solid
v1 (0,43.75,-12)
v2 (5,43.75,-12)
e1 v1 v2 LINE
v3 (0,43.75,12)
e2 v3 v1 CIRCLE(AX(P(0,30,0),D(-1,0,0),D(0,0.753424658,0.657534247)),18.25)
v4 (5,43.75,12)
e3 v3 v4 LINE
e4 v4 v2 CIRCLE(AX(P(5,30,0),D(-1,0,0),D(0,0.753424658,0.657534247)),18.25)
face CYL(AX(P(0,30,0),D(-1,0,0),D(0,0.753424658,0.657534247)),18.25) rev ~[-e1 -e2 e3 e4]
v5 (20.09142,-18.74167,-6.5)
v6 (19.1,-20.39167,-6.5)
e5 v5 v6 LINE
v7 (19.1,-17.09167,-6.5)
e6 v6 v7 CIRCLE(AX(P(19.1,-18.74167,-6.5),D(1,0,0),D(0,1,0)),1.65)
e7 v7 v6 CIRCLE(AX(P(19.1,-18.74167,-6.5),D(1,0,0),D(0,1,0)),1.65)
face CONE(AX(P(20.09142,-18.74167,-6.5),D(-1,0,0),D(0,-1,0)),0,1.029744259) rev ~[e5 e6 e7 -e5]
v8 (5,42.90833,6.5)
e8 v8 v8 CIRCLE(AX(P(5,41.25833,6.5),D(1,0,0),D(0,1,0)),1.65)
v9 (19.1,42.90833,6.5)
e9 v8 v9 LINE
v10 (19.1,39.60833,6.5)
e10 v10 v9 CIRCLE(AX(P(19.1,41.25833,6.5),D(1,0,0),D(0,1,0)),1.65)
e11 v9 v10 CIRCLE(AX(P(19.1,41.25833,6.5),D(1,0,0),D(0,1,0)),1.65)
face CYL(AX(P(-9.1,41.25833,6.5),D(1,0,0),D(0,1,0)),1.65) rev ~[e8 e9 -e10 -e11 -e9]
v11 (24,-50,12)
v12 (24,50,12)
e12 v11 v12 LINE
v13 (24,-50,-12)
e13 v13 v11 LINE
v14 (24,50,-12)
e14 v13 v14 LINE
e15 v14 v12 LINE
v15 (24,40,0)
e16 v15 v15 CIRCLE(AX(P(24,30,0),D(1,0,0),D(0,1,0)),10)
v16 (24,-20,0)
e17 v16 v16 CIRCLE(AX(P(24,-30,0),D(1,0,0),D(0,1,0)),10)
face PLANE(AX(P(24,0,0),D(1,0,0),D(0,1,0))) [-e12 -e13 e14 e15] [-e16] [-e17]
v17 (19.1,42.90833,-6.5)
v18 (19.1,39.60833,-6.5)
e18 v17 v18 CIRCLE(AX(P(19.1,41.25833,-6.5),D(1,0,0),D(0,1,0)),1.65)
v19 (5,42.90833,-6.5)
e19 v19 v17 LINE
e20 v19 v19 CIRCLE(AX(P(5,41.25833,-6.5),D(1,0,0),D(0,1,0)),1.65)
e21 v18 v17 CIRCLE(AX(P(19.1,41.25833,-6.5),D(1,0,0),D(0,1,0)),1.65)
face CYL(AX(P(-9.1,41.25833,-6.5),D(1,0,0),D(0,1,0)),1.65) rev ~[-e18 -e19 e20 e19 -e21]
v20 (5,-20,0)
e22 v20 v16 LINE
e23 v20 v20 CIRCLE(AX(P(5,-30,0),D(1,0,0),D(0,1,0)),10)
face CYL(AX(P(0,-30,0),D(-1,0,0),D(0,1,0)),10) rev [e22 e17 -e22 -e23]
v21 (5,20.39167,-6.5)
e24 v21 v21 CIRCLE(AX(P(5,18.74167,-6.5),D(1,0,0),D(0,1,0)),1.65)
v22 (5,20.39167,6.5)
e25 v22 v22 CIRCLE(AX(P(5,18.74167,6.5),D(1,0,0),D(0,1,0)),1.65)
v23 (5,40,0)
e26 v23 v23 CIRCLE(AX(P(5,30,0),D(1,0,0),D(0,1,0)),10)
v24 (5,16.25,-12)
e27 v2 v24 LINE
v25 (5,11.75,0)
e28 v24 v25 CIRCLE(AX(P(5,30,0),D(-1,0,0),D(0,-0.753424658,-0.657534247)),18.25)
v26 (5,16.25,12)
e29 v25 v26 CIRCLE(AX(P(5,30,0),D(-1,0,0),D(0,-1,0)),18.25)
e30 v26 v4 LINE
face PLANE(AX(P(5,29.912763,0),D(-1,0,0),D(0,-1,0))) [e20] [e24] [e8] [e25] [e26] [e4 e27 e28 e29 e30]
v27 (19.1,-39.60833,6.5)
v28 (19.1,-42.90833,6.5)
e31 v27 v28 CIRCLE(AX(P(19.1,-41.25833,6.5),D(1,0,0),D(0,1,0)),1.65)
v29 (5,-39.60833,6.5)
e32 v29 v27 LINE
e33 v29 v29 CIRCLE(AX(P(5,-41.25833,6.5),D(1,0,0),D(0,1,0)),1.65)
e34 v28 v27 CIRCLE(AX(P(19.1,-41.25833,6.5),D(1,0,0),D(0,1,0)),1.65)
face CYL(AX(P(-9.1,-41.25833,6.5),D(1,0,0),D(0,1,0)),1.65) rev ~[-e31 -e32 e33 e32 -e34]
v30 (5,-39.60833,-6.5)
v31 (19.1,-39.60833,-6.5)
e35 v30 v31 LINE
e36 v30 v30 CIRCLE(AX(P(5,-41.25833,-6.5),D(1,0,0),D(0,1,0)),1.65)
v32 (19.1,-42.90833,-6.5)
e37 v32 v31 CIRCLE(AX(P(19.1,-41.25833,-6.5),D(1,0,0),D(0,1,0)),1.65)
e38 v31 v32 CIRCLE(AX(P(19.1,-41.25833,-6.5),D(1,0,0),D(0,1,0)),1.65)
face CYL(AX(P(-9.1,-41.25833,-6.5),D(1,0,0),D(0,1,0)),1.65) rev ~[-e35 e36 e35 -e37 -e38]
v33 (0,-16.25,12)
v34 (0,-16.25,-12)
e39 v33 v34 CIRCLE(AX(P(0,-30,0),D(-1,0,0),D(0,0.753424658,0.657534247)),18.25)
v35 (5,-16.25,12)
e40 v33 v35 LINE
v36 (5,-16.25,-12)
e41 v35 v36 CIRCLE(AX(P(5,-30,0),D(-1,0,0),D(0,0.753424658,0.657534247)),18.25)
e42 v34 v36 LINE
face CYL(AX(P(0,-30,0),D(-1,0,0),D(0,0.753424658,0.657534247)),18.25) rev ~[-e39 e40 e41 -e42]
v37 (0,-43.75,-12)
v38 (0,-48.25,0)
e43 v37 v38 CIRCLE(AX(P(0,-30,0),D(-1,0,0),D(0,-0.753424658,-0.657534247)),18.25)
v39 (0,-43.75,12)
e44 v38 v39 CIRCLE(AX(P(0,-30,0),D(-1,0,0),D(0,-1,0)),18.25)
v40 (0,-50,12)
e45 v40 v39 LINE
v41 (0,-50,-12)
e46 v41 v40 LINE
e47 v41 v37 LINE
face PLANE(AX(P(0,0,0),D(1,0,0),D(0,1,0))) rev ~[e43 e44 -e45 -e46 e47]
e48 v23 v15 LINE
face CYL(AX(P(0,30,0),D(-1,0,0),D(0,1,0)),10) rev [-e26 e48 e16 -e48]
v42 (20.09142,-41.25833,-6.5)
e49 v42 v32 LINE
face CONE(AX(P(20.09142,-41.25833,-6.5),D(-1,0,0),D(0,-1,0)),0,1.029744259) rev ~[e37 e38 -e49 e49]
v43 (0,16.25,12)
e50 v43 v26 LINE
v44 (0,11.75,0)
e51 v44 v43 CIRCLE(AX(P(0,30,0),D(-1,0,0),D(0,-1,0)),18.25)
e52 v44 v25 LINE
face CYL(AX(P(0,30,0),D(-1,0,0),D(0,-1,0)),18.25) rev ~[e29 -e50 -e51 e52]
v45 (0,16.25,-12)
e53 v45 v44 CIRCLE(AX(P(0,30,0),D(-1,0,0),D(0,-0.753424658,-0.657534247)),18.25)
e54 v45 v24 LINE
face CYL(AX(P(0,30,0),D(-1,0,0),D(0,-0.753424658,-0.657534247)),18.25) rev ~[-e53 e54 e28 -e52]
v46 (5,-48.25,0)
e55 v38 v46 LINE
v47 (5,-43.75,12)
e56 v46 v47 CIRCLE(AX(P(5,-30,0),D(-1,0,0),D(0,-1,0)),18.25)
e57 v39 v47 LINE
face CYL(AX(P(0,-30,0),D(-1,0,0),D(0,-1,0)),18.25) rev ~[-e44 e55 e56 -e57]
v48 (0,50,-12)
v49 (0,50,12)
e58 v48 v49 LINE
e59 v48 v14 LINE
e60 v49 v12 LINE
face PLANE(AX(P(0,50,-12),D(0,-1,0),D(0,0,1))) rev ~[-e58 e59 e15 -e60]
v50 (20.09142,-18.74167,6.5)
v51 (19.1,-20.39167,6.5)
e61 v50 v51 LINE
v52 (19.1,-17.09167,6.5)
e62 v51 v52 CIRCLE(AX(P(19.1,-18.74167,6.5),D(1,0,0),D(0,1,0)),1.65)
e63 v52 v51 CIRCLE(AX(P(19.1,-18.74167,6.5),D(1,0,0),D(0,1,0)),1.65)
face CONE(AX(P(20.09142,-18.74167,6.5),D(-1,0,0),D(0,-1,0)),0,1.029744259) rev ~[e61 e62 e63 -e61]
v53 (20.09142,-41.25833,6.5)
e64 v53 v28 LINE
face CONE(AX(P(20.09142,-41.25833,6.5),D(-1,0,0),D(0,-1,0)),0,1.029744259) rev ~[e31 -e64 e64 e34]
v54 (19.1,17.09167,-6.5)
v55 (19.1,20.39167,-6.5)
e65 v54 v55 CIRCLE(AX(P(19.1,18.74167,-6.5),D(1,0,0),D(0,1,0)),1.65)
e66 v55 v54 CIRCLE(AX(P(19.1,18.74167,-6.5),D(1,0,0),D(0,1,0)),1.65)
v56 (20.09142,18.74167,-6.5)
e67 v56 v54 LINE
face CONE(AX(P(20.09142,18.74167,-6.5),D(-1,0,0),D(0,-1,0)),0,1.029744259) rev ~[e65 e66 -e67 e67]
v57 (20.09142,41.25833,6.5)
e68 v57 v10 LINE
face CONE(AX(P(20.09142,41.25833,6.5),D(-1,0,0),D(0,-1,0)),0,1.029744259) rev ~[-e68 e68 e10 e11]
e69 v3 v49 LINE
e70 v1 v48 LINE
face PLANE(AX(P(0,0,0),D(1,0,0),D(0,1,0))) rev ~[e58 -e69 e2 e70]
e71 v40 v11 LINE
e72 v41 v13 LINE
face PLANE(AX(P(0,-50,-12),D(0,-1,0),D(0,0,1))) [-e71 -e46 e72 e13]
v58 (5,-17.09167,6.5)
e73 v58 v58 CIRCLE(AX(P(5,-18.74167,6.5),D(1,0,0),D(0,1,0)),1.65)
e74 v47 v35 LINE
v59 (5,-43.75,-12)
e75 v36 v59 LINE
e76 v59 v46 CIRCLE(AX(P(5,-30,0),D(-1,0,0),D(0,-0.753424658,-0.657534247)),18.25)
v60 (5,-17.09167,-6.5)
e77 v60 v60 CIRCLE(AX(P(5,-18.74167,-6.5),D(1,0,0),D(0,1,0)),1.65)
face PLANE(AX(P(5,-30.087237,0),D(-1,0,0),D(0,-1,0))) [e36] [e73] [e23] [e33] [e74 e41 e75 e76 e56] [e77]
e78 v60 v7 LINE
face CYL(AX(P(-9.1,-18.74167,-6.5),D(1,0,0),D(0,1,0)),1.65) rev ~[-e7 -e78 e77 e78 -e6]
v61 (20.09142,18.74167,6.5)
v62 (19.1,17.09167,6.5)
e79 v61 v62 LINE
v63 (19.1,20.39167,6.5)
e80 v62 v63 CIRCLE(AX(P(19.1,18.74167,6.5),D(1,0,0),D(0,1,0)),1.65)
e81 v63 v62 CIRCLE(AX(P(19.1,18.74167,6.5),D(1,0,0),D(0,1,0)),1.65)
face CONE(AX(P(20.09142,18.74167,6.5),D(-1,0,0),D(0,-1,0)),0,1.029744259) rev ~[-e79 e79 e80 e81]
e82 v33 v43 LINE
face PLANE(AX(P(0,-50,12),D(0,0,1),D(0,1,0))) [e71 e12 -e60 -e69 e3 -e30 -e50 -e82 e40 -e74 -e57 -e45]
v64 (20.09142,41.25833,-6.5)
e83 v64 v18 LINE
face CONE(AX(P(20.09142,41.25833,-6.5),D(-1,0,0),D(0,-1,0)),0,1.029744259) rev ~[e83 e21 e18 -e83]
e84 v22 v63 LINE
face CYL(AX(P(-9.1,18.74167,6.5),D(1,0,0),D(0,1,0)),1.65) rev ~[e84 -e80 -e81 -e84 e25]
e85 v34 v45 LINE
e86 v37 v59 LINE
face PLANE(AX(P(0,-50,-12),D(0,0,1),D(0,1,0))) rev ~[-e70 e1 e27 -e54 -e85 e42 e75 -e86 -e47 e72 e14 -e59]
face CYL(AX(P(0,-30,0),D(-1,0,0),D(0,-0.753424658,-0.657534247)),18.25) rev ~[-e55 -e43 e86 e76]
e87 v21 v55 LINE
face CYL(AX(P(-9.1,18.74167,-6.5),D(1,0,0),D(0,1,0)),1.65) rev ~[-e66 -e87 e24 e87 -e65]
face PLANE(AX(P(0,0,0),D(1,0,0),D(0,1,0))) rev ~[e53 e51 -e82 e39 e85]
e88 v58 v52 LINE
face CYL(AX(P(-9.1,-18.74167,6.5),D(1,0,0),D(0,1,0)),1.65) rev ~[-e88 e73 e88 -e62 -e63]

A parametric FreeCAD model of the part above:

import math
import FreeCAD as App
import Part
import Sketcher
from FreeCAD import Vector


def add_polygon(sketch, points):
    """Adds a closed chain of lines whose ends are joined by coincident constraints."""
    first, n = sketch.GeometryCount, len(points)
    for a, b in zip(points, points[1:] + points[:1]):
        sketch.addGeometry(Part.LineSegment(App.Vector(*a, 0), App.Vector(*b, 0)), False)
    for i in range(n):
        sketch.addConstraint(Sketcher.Constraint("Coincident", first + i, 2, first + (i + 1) % n, 1))

doc = App.newDocument("Part")
params = doc.addObject("Spreadsheet::Sheet", "Params")
for row, (alias, value) in enumerate([
    ("sketch1_diameter", "20 mm"),
    ("sketch1_width", "100 mm"),
    ("sketch1_height", "24 mm"),
    ("pad1_length", "24 mm"),
    ("sketch2_diameter", "20 mm"),
    ("sketch2_radius", "18.25 mm"),
    ("sketch2_width", "27.5 mm"),
    ("pocket1_length", "5 mm"),
    ("sketch3_diameter", "3.3 mm"),
    ("hole_diameter", "3.3 mm"),
    ("hole_depth", "14.1 mm"),
], start=1):
    params.set(f"A{row}", alias)
    params.set(f"B{row}", "=" + value)
    params.setAlias(f"B{row}", alias)

body = doc.addObject("PartDesign::Body", "Body")

sketch1 = body.newObject("Sketcher::SketchObject", "Sketch")
sketch1.AttachmentSupport = (doc.getObject("YZ_Plane"), [""])
sketch1.MapMode = "FlatFace"
add_polygon(sketch1, [(-50, 12), (-50, -12), (50, -12), (50, 12)])
sketch1.addGeometry(Part.Circle(Vector(-30, 0, 0), Vector(0, 0, 1), 10), False)
sketch1.addGeometry(Part.Circle(Vector(30, 0, 0), Vector(0, 0, 1), 10), False)
sketch1.addConstraint(Sketcher.Constraint("Vertical", 0))
sketch1.addConstraint(Sketcher.Constraint("Horizontal", 1))
sketch1.addConstraint(Sketcher.Constraint("Vertical", 2))
sketch1.addConstraint(Sketcher.Constraint("Horizontal", 3))
sketch1.addConstraint(Sketcher.Constraint("Equal", 4, 5))
sketch1.addConstraint(Sketcher.Constraint("Symmetric", 4, 3, 5, 3, -1, 1))
sketch1.addConstraint(Sketcher.Constraint("Symmetric", 0, 2, 2, 2, -1, 1))
sketch1.addConstraint(Sketcher.Constraint("PointOnObject", 4, 3, -1))
sketch1.addConstraint(Sketcher.Constraint("Diameter", 4, 20.0))
sketch1.addConstraint(Sketcher.Constraint("DistanceX", 1, 1, 1, 2, 100.0))
sketch1.addConstraint(Sketcher.Constraint("DistanceY", 0, 2, 0, 1, 24.0))
sketch1.addConstraint(Sketcher.Constraint("DistanceX", 4, 3, -1, 1, 30.0))
sketch1.setExpression("Constraints[12]", "Params.sketch1_diameter")
sketch1.setExpression("Constraints[13]", "Params.sketch1_width")
sketch1.setExpression("Constraints[14]", "Params.sketch1_height")
pad1 = body.newObject("PartDesign::Pad", "Pad")
pad1.Profile = sketch1
pad1.setExpression("Length", "Params.pad1_length")

sketch2 = body.newObject("Sketcher::SketchObject", "Sketch001")
sketch2.AttachmentSupport = (doc.getObject("YZ_Plane"), [""])
sketch2.MapMode = "FlatFace"
sketch2.addGeometry(Part.ArcOfCircle(Part.Circle(Vector(30, 0, 0), Vector(0, 0, 1), 18.25), math.radians(180), math.radians(221.11209)), False)
sketch2.addGeometry(Part.ArcOfCircle(Part.Circle(Vector(30, 0, 0), Vector(0, 0, 1), 18.25), math.radians(138.88791), math.radians(180)), False)
sketch2.addGeometry(Part.LineSegment(Vector(16.25, 12, 0), Vector(43.75, 12, 0)), False)
sketch2.addGeometry(Part.ArcOfCircle(Part.Circle(Vector(30, 0, 0), Vector(0, 0, 1), 18.25), math.radians(-41.11209), math.radians(41.11209)), False)
sketch2.addGeometry(Part.LineSegment(Vector(43.75, -12, 0), Vector(16.25, -12, 0)), False)
sketch2.addGeometry(Part.Circle(Vector(30, 0, 0), Vector(0, 0, 1), 10), False)
sketch2.addGeometry(Part.LineSegment(Vector(-43.75, 12, 0), Vector(-16.25, 12, 0)), False)
sketch2.addGeometry(Part.ArcOfCircle(Part.Circle(Vector(-30, 0, 0), Vector(0, 0, 1), 18.25), math.radians(-41.11209), math.radians(41.11209)), False)
sketch2.addGeometry(Part.LineSegment(Vector(-16.25, -12, 0), Vector(-43.75, -12, 0)), False)
sketch2.addGeometry(Part.ArcOfCircle(Part.Circle(Vector(-30, 0, 0), Vector(0, 0, 1), 18.25), math.radians(180), math.radians(221.11209)), False)
sketch2.addGeometry(Part.ArcOfCircle(Part.Circle(Vector(-30, 0, 0), Vector(0, 0, 1), 18.25), math.radians(138.88791), math.radians(180)), False)
sketch2.addGeometry(Part.Circle(Vector(-30, 0, 0), Vector(0, 0, 1), 10), False)
sketch2.addConstraint(Sketcher.Constraint("Tangent", 0, 1, 1, 2))
sketch2.addConstraint(Sketcher.Constraint("Coincident", 1, 1, 2, 1))
sketch2.addConstraint(Sketcher.Constraint("Coincident", 2, 2, 3, 2))
sketch2.addConstraint(Sketcher.Constraint("Coincident", 3, 1, 4, 1))
sketch2.addConstraint(Sketcher.Constraint("Coincident", 4, 2, 0, 2))
sketch2.addConstraint(Sketcher.Constraint("Coincident", 6, 2, 7, 2))
sketch2.addConstraint(Sketcher.Constraint("Coincident", 7, 1, 8, 1))
sketch2.addConstraint(Sketcher.Constraint("Coincident", 8, 2, 9, 2))
sketch2.addConstraint(Sketcher.Constraint("Tangent", 9, 1, 10, 2))
sketch2.addConstraint(Sketcher.Constraint("Coincident", 10, 1, 6, 1))
sketch2.addConstraint(Sketcher.Constraint("Horizontal", 2))
sketch2.addConstraint(Sketcher.Constraint("Horizontal", 4))
sketch2.addConstraint(Sketcher.Constraint("Horizontal", 6))
sketch2.addConstraint(Sketcher.Constraint("Horizontal", 8))
sketch2.addConstraint(Sketcher.Constraint("Coincident", 3, 3, 0, 3))
sketch2.addConstraint(Sketcher.Constraint("Coincident", 5, 3, 0, 3))
sketch2.addConstraint(Sketcher.Constraint("Coincident", 9, 3, 7, 3))
sketch2.addConstraint(Sketcher.Constraint("Coincident", 11, 3, 7, 3))
sketch2.addConstraint(Sketcher.Constraint("Equal", 0, 1))
sketch2.addConstraint(Sketcher.Constraint("Equal", 1, 3))
sketch2.addConstraint(Sketcher.Constraint("Equal", 3, 7))
sketch2.addConstraint(Sketcher.Constraint("Equal", 7, 9))
sketch2.addConstraint(Sketcher.Constraint("Equal", 9, 10))
sketch2.addConstraint(Sketcher.Constraint("Equal", 5, 11))
sketch2.addConstraint(Sketcher.Constraint("Symmetric", 0, 3, 7, 3, -1, 1))
sketch2.addConstraint(Sketcher.Constraint("Symmetric", 1, 1, 6, 2, -2))
sketch2.addConstraint(Sketcher.Constraint("PointOnObject", 0, 1, -1))
sketch2.addConstraint(Sketcher.Constraint("PointOnObject", 9, 1, -1))
sketch2.addConstraint(Sketcher.Constraint("Horizontal", 4, 2, 7, 1))
sketch2.addConstraint(Sketcher.Constraint("Vertical", 2, 2, 3, 1))
sketch2.addConstraint(Sketcher.Constraint("Diameter", 5, 20.0))
sketch2.addConstraint(Sketcher.Constraint("Radius", 0, 18.25))
sketch2.addConstraint(Sketcher.Constraint("DistanceX", 2, 1, 2, 2, 27.5))
sketch2.addConstraint(Sketcher.Constraint("DistanceX", -1, 1, 0, 3, 30.0))
sketch2.setExpression("Constraints[30]", "Params.sketch2_diameter")
sketch2.setExpression("Constraints[31]", "Params.sketch2_radius")
sketch2.setExpression("Constraints[32]", "Params.sketch2_width")
pocket1 = body.newObject("PartDesign::Pocket", "Pocket")
pocket1.Profile = sketch2
pocket1.setExpression("Length", "Params.pocket1_length")
pocket1.Reversed = True

sketch3 = body.newObject("Sketcher::SketchObject", "Sketch002")
sketch3.AttachmentSupport = (doc.getObject("YZ_Plane"), [""])
sketch3.MapMode = "FlatFace"
sketch3.AttachmentOffset = App.Placement(Vector(0, 0, 5), App.Rotation())
sketch3.addGeometry(Part.Circle(Vector(41.25833, 6.5, 0), Vector(0, 0, 1), 1.65), False)
sketch3.addGeometry(Part.Circle(Vector(41.25833, -6.5, 0), Vector(0, 0, 1), 1.65), False)
sketch3.addGeometry(Part.Circle(Vector(18.74167, 6.5, 0), Vector(0, 0, 1), 1.65), False)
sketch3.addGeometry(Part.Circle(Vector(18.74167, -6.5, 0), Vector(0, 0, 1), 1.65), False)
sketch3.addGeometry(Part.Circle(Vector(-18.74167, 6.5, 0), Vector(0, 0, 1), 1.65), False)
sketch3.addGeometry(Part.Circle(Vector(-18.74167, -6.5, 0), Vector(0, 0, 1), 1.65), False)
sketch3.addGeometry(Part.Circle(Vector(-41.25833, 6.5, 0), Vector(0, 0, 1), 1.65), False)
sketch3.addGeometry(Part.Circle(Vector(-41.25833, -6.5, 0), Vector(0, 0, 1), 1.65), False)
sketch3.addConstraint(Sketcher.Constraint("Equal", 0, 1))
sketch3.addConstraint(Sketcher.Constraint("Equal", 1, 2))
sketch3.addConstraint(Sketcher.Constraint("Equal", 2, 3))
sketch3.addConstraint(Sketcher.Constraint("Equal", 3, 4))
sketch3.addConstraint(Sketcher.Constraint("Equal", 4, 5))
sketch3.addConstraint(Sketcher.Constraint("Equal", 5, 6))
sketch3.addConstraint(Sketcher.Constraint("Equal", 6, 7))
sketch3.addConstraint(Sketcher.Constraint("Symmetric", 3, 3, 4, 3, -1, 1))
sketch3.addConstraint(Sketcher.Constraint("Symmetric", 2, 3, 5, 3, -1, 1))
sketch3.addConstraint(Sketcher.Constraint("Symmetric", 1, 3, 6, 3, -1, 1))
sketch3.addConstraint(Sketcher.Constraint("Symmetric", 0, 3, 7, 3, -1, 1))
sketch3.addConstraint(Sketcher.Constraint("Symmetric", 2, 3, 4, 3, -2))
sketch3.addConstraint(Sketcher.Constraint("Symmetric", 0, 3, 6, 3, -2))
sketch3.addConstraint(Sketcher.Constraint("Horizontal", 0, 3, 2, 3))
sketch3.addConstraint(Sketcher.Constraint("Diameter", 0, 3.3))
sketch3.addConstraint(Sketcher.Constraint("DistanceY", 1, 3, 0, 3, 13.0))
sketch3.addConstraint(Sketcher.Constraint("DistanceX", 4, 3, 0, 3, 60.0))
sketch3.addConstraint(Sketcher.Constraint("DistanceX", -1, 1, 0, 3, 41.25833))
sketch3.setExpression("Constraints[14]", "Params.sketch3_diameter")
doc.recompute()
hole = body.newObject("PartDesign::Hole", "Hole")
hole.Profile = sketch3
hole.ThreadType = "None"
hole.setExpression("Diameter", "Params.hole_diameter")
hole.DepthType = "Dimension"
hole.setExpression("Depth", "Params.hole_depth")
hole.DrillPoint = "Angled"
hole.DrillPointAngle = 118
hole.Reversed = True

doc.recompute()
